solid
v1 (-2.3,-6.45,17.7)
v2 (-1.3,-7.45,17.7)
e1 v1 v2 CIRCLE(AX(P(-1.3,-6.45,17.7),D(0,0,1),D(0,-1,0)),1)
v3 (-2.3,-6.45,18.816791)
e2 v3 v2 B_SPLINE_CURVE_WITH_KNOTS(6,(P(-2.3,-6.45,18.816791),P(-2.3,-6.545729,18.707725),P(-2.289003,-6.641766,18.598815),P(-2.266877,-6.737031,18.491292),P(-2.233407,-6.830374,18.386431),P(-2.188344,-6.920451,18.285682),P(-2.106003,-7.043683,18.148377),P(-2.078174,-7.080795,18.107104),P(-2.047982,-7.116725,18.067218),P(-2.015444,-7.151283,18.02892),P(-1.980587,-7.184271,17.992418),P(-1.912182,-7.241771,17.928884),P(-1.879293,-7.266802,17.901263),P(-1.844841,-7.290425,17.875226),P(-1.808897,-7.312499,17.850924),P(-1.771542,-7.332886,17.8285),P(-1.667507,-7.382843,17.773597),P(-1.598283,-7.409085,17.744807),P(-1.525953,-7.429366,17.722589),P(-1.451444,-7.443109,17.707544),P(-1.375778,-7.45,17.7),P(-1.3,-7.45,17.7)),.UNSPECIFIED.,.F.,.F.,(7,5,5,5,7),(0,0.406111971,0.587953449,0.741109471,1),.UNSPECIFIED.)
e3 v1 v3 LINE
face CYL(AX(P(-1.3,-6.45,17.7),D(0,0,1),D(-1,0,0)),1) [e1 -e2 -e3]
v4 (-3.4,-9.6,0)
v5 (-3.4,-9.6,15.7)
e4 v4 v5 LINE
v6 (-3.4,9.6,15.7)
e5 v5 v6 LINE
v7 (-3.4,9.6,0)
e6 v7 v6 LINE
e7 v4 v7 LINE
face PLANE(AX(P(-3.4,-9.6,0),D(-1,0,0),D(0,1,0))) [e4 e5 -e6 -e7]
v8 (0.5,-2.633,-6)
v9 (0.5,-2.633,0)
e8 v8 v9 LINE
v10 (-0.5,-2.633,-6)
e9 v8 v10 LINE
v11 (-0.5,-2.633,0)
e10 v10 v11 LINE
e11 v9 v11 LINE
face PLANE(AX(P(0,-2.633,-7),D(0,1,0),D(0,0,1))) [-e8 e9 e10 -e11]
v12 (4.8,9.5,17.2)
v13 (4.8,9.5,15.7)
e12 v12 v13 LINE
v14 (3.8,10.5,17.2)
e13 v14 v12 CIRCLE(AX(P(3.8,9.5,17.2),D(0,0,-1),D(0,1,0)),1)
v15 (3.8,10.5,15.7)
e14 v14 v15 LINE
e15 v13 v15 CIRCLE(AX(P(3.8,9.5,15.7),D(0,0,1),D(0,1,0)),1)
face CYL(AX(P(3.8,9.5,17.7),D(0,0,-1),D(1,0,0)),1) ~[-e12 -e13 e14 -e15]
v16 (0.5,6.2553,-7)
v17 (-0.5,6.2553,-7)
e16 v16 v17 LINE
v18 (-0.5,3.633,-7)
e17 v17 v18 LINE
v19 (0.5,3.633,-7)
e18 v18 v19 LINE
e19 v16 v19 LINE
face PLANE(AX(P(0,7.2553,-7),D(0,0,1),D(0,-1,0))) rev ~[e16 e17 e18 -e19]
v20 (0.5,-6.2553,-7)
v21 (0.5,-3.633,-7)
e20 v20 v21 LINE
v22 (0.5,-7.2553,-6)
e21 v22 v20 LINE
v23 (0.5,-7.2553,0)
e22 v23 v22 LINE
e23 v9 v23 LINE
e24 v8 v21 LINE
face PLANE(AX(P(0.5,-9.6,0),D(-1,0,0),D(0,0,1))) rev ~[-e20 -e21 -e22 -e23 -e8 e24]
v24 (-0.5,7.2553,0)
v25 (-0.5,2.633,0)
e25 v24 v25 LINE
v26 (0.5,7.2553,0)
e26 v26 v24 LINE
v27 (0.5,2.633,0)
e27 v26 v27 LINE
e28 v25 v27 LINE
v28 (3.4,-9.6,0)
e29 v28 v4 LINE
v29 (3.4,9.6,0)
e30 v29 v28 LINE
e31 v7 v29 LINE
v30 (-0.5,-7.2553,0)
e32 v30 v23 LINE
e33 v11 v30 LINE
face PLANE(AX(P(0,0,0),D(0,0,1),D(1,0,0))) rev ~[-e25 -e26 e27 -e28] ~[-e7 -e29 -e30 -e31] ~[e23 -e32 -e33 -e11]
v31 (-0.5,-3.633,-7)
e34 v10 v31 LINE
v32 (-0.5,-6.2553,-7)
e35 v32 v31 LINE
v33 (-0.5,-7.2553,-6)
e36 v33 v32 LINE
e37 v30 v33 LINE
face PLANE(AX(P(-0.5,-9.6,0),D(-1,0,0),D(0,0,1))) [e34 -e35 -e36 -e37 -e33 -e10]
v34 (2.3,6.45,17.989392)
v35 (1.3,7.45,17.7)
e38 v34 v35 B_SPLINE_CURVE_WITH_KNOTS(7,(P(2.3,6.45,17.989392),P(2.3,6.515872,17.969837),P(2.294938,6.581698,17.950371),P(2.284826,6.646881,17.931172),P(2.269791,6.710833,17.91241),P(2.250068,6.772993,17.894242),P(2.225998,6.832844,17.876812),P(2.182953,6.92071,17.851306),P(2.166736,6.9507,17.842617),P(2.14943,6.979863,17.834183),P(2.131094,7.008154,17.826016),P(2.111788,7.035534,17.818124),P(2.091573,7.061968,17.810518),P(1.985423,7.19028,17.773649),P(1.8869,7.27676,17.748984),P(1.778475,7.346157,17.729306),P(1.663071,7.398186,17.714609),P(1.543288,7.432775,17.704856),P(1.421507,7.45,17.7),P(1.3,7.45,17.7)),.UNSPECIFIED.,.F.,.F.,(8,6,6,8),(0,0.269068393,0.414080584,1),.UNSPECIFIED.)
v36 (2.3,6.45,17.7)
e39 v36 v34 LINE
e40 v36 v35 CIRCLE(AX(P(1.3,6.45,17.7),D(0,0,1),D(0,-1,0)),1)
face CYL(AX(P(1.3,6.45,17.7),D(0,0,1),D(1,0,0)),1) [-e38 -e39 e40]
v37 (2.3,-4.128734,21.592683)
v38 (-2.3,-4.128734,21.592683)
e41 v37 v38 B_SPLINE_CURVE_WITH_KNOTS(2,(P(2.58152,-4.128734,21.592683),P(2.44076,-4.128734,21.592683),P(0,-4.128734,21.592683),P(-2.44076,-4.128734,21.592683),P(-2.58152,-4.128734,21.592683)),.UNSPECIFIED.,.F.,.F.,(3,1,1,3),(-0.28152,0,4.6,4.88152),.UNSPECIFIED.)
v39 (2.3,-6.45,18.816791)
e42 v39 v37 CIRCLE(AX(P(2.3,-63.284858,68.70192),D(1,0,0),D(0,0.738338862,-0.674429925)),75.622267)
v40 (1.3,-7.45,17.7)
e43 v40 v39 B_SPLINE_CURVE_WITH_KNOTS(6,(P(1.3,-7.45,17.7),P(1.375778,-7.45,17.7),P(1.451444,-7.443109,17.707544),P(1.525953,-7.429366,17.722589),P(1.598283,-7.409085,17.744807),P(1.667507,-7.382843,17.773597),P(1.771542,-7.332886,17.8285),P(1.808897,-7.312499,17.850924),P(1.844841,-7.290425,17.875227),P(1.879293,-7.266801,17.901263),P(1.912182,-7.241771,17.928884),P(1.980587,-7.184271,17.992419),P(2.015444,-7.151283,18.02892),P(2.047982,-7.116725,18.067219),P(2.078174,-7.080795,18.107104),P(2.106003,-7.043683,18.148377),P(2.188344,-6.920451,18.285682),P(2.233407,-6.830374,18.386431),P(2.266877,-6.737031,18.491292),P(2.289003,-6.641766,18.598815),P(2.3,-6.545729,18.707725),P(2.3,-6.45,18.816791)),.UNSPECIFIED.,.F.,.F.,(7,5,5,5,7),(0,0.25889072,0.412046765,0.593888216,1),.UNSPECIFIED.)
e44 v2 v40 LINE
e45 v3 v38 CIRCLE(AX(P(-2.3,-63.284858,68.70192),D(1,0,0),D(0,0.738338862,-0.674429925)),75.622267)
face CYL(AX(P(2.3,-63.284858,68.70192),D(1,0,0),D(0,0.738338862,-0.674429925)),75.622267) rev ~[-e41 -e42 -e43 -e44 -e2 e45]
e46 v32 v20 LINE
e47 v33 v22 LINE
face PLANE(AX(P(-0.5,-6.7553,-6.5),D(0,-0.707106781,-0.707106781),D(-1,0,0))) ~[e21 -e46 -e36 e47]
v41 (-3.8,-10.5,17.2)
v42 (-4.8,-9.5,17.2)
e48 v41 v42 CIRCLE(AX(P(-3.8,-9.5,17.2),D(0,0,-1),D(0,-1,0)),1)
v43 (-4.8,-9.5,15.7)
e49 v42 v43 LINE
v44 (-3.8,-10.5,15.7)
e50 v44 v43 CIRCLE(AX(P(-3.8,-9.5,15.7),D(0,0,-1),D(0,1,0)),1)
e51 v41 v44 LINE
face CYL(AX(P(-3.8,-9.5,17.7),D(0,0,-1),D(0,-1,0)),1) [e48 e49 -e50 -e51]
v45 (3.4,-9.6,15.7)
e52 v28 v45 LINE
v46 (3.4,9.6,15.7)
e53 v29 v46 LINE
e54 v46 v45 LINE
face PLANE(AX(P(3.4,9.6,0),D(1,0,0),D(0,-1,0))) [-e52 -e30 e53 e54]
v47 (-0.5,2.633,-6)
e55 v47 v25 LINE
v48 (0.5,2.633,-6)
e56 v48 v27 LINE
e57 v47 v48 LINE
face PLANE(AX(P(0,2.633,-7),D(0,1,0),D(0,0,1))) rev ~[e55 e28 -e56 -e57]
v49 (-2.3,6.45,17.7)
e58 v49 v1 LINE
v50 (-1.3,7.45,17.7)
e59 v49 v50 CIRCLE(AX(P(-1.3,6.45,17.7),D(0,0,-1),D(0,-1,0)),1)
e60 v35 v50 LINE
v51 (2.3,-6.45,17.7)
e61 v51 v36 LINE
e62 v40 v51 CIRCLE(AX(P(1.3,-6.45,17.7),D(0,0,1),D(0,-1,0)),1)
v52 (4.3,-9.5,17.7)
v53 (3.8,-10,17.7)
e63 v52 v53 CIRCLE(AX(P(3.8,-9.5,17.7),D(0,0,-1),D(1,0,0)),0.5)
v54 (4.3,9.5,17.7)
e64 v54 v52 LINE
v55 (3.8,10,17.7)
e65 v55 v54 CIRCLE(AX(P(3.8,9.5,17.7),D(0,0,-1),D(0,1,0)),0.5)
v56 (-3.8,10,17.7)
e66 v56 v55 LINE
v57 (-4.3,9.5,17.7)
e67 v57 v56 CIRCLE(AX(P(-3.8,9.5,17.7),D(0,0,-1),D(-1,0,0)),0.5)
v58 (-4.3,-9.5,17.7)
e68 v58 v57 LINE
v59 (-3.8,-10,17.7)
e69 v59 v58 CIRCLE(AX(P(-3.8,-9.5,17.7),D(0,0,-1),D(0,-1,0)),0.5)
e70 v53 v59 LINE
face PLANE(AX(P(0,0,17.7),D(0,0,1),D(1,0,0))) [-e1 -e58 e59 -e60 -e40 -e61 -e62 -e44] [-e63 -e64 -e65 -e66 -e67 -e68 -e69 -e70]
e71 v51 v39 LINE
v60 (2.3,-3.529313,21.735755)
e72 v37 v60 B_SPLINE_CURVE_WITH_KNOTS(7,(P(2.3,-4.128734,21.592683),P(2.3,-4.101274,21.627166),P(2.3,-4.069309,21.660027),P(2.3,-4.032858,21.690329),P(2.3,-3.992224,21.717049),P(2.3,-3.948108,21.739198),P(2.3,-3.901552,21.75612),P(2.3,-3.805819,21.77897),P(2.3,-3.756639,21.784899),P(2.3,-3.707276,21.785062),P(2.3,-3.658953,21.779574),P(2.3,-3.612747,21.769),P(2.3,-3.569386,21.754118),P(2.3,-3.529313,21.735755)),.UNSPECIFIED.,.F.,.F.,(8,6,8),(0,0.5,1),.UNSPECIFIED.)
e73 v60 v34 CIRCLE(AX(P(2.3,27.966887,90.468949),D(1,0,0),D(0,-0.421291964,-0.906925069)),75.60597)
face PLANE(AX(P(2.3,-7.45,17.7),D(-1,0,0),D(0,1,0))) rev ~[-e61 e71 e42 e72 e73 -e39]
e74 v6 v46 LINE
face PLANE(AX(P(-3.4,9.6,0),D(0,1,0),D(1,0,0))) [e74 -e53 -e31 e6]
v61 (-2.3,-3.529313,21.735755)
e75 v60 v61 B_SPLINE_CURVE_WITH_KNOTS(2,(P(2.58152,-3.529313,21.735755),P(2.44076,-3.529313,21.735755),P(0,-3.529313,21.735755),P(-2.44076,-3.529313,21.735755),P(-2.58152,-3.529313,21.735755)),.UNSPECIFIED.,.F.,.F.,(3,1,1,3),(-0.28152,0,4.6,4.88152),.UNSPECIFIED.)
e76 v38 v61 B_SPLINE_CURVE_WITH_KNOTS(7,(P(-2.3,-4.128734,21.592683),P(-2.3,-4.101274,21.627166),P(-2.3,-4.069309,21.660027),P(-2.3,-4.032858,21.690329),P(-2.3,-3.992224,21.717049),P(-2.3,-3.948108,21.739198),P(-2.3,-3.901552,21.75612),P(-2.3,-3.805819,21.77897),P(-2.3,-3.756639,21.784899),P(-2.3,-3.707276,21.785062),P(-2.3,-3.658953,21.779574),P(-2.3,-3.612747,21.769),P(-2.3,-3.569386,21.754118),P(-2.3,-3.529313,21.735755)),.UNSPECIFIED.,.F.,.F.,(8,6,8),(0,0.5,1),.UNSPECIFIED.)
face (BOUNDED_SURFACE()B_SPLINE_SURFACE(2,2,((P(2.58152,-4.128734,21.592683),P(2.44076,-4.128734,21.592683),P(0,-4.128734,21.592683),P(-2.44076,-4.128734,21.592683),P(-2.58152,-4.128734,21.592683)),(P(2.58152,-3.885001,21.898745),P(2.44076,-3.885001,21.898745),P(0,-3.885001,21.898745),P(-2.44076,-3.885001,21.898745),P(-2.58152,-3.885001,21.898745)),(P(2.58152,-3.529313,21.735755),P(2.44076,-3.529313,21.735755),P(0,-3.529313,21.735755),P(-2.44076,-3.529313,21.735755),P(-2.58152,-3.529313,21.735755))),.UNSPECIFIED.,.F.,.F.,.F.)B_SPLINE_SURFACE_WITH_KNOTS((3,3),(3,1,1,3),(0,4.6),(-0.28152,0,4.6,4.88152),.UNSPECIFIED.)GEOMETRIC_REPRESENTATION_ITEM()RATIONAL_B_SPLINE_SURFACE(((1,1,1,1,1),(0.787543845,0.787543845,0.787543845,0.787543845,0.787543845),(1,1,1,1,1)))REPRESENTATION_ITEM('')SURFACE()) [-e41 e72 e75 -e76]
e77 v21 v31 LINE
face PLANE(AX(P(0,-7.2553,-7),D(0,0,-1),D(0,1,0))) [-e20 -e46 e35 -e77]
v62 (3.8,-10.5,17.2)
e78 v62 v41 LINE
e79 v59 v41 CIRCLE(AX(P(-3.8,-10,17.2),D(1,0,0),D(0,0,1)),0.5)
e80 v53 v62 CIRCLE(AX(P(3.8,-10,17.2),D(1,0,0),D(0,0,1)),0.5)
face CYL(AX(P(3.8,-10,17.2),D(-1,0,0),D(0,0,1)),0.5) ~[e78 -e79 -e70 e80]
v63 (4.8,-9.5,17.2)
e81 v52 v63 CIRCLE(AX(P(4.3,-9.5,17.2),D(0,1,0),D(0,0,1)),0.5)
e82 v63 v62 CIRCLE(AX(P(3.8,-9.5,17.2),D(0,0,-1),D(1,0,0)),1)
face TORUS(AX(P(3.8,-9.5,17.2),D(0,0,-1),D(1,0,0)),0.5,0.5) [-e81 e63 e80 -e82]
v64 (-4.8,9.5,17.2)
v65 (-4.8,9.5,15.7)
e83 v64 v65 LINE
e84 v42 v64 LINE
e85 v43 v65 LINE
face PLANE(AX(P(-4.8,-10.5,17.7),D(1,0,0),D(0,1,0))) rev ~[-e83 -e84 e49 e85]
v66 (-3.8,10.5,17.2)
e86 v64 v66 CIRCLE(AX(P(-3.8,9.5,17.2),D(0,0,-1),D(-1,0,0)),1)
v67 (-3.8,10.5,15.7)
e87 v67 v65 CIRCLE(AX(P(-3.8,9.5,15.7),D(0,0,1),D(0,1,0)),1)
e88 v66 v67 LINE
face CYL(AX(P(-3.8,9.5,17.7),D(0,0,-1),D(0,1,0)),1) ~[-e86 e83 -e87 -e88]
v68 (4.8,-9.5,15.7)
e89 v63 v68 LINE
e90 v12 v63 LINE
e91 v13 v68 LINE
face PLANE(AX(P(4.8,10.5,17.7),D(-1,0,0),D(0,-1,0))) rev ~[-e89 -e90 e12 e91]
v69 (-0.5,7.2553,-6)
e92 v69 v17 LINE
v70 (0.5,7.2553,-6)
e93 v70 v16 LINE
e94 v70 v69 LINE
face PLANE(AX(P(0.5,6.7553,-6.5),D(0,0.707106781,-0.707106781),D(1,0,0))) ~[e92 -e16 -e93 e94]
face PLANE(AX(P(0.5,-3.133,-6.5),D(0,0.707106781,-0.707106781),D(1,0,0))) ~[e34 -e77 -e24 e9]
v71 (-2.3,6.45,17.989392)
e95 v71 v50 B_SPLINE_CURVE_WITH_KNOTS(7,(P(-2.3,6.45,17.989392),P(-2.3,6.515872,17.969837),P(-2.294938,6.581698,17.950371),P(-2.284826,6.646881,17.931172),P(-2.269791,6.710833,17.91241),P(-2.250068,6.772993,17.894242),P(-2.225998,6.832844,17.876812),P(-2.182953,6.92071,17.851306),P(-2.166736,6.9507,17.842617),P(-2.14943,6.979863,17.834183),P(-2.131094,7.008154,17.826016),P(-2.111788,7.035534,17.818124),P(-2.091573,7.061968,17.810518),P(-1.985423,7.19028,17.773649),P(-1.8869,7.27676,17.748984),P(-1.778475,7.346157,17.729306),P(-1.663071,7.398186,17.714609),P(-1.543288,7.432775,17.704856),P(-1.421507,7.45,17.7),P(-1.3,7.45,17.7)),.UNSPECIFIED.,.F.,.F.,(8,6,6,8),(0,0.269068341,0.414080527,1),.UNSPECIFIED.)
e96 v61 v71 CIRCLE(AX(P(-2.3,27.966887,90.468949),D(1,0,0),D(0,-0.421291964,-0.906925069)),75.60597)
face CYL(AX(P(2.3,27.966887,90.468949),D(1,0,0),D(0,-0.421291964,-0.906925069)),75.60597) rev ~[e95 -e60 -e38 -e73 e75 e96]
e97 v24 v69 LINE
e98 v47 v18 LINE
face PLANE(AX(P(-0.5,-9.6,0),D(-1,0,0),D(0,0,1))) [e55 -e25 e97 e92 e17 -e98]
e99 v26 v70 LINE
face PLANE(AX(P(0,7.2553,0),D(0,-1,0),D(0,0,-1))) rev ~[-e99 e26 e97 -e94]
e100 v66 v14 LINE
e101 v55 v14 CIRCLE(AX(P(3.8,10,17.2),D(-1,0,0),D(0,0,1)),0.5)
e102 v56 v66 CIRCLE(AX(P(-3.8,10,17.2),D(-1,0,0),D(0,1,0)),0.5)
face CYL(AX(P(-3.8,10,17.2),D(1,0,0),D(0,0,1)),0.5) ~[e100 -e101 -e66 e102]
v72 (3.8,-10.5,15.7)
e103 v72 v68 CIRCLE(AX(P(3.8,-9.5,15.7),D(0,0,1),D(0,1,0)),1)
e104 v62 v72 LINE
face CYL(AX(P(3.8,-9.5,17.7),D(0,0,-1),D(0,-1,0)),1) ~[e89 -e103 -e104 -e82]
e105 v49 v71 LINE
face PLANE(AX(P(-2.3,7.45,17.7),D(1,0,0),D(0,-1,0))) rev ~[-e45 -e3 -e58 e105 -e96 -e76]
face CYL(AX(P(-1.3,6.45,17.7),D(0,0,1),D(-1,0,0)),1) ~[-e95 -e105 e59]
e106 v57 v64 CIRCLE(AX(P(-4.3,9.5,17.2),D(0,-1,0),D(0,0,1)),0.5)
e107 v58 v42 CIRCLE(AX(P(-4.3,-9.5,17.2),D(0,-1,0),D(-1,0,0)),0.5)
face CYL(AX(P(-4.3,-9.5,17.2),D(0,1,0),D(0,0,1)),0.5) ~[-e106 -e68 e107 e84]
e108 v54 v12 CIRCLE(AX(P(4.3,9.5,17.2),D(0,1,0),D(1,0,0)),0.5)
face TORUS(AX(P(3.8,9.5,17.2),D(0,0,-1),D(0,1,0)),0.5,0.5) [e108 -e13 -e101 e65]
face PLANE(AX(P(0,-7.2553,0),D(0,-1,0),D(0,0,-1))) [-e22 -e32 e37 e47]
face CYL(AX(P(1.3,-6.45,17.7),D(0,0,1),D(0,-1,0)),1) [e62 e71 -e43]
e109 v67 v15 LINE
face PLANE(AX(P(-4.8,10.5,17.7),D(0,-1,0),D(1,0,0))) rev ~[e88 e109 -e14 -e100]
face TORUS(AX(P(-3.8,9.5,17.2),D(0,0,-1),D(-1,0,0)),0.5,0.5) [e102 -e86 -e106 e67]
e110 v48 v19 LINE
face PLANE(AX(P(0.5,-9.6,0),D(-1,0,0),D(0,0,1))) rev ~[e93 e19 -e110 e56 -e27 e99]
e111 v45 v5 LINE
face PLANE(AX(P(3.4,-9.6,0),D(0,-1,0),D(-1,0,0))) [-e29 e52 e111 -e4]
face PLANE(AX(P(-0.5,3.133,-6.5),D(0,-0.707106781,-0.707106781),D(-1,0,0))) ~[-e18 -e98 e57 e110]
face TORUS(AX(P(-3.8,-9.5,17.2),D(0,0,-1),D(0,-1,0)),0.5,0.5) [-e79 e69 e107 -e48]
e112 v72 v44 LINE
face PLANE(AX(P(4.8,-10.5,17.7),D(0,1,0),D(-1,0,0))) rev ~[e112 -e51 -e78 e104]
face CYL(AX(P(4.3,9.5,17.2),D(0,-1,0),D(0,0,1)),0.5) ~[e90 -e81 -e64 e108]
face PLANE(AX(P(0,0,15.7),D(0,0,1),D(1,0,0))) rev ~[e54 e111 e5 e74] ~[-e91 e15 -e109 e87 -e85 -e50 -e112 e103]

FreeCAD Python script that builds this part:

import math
import FreeCAD as App
import Part
import Sketcher
from FreeCAD import Vector
Q = App.Units.Quantity


def edges_at(feature, points):
    """Names of the edges that pass closest to the given points."""
    edges = feature.Shape.Edges
    near = lambda p: min(range(len(edges)), key=lambda i: edges[i].distToShape(Part.Vertex(*p))[0])
    return sorted({f"Edge{near(p) + 1}" for p in points})


def add_polygon(sketch, points):
    """Adds a closed chain of lines whose ends are joined by coincident constraints."""
    first, n = sketch.GeometryCount, len(points)
    for a, b in zip(points, points[1:] + points[:1]):
        sketch.addGeometry(Part.LineSegment(App.Vector(*a, 0), App.Vector(*b, 0)), False)
    for i in range(n):
        sketch.addConstraint(Sketcher.Constraint("Coincident", first + i, 2, first + (i + 1) % n, 1))

doc = App.newDocument("Part")
body = doc.addObject("PartDesign::Body", "Body")

# Sketch on XY plane
sketch1 = body.newObject("Sketcher::SketchObject", "Sketch")
sketch1.AttachmentSupport = (doc.getObject("XY_Plane"), [""])
sketch1.MapMode = "FlatFace"
add_polygon(sketch1, [(3.4, 9.6), (-3.4, 9.6), (-3.4, -9.6), (3.4, -9.6)])  # lines 0-3
sketch1.addConstraint(Sketcher.Constraint("Horizontal", 0))
sketch1.addConstraint(Sketcher.Constraint("Vertical", 1))
sketch1.addConstraint(Sketcher.Constraint("Horizontal", 2))
sketch1.addConstraint(Sketcher.Constraint("Vertical", 3))
sketch1.addConstraint(Sketcher.Constraint("Symmetric", 0, 2, 2, 2, -1, 1))
sketch1.addConstraint(Sketcher.Constraint("DistanceX", 0, 2, 0, 1, Q("6.8 mm")))
sketch1.addConstraint(Sketcher.Constraint("DistanceY", 1, 2, 1, 1, Q("19.2 mm")))
pad1 = body.newObject("PartDesign::Pad", "Pad")
pad1.Profile = sketch1
pad1.Length = 17.7

# Sketch on XY plane
sketch2 = body.newObject("Sketcher::SketchObject", "Sketch001")
sketch2.AttachmentSupport = (doc.getObject("XY_Plane"), [""])
sketch2.MapMode = "FlatFace"
sketch2.AttachmentOffset = App.Placement(Vector(0, 0, 17.7), App.Rotation())
add_polygon(sketch2, [(4.8, 10.5), (-4.8, 10.5), (-4.8, -10.5), (4.8, -10.5)])  # lines 0-3
sketch2.addConstraint(Sketcher.Constraint("Horizontal", 0))
sketch2.addConstraint(Sketcher.Constraint("Vertical", 1))
sketch2.addConstraint(Sketcher.Constraint("Horizontal", 2))
sketch2.addConstraint(Sketcher.Constraint("Vertical", 3))
sketch2.addConstraint(Sketcher.Constraint("Symmetric", 0, 2, 2, 2, -1, 1))
sketch2.addConstraint(Sketcher.Constraint("DistanceY", 1, 2, 1, 1, Q("21 mm")))
sketch2.addConstraint(Sketcher.Constraint("DistanceX", 0, 2, 0, 1, Q("9.6 mm")))
pad2 = body.newObject("PartDesign::Pad", "Pad001")
pad2.Profile = sketch2
pad2.Length = 2
pad2.Reversed = True

# Sketch on XY plane
sketch3 = body.newObject("Sketcher::SketchObject", "Sketch002")
sketch3.AttachmentSupport = (doc.getObject("XY_Plane"), [""])
sketch3.MapMode = "FlatFace"
sketch3.AttachmentOffset = App.Placement(Vector(0, 0, 17.7), App.Rotation())
add_polygon(sketch3, [(-2.3, 7.45), (-2.3, -7.45), (2.3, -7.45), (2.3, 7.45)])  # lines 0-3
sketch3.addConstraint(Sketcher.Constraint("Vertical", 0))
sketch3.addConstraint(Sketcher.Constraint("Horizontal", 1))
sketch3.addConstraint(Sketcher.Constraint("Vertical", 2))
sketch3.addConstraint(Sketcher.Constraint("Horizontal", 3))
sketch3.addConstraint(Sketcher.Constraint("Symmetric", 0, 2, 2, 2, -1, 1))
sketch3.addConstraint(Sketcher.Constraint("DistanceX", 1, 1, 1, 2, Q("4.6 mm")))
sketch3.addConstraint(Sketcher.Constraint("DistanceY", 0, 2, 0, 1, Q("14.9 mm")))
pad3 = body.newObject("PartDesign::Pad", "Pad002")
pad3.Profile = sketch3
pad3.Length = 4.2
doc.recompute()

fillet = body.newObject("PartDesign::Fillet", "Fillet")
fillet.Base = (pad3, edges_at(pad3, [
    (-2.3, 7.45, 19.8),
    (2.3, 7.45, 19.8),
    (-2.3, -7.45, 19.8),
    (2.3, -7.45, 19.8),
]))
fillet.Radius = 1

# Sketch on YZ plane
sketch4 = body.newObject("Sketcher::SketchObject", "Sketch003")
sketch4.AttachmentSupport = (doc.getObject("YZ_Plane"), [""])
sketch4.MapMode = "FlatFace"
sketch4.AttachmentOffset = App.Placement(Vector(0, 0, 2.3), App.Rotation())
sketch4.addGeometry(Part.LineSegment(Vector(-7.45, 21.9, 0), Vector(-7.45, 17.7, 0)), False)
sketch4.addGeometry(Part.ArcOfCircle(Part.Circle(Vector(-63.284858, 68.70192, 0), Vector(0, 0, 1), 75.622267), math.radians(-42.409896), math.radians(-38.235175)), False)
sketch4.addGeometry(Part.LineSegment(Vector(-3.8853, 21.9, 0), Vector(-7.45, 21.9, 0)), False)
sketch4.addGeometry(Part.LineSegment(Vector(7.45, 21.9, 0), Vector(-3.8853, 21.9, 0)), False)
sketch4.addGeometry(Part.ArcOfCircle(Part.Circle(Vector(27.966887, 90.468949, 0), Vector(0, 0, 1), 75.60597), math.radians(-114.916181), math.radians(-105.745566)), False)
sketch4.addGeometry(Part.LineSegment(Vector(7.45, 17.7, 0), Vector(7.45, 21.9, 0)), False)
sketch4.addConstraint(Sketcher.Constraint("Coincident", 0, 2, 1, 1))
sketch4.addConstraint(Sketcher.Constraint("Coincident", 1, 2, 2, 1))
sketch4.addConstraint(Sketcher.Constraint("Coincident", 2, 2, 0, 1))
sketch4.addConstraint(Sketcher.Constraint("Coincident", 3, 2, 4, 1))
sketch4.addConstraint(Sketcher.Constraint("Coincident", 4, 2, 5, 1))
sketch4.addConstraint(Sketcher.Constraint("Coincident", 5, 2, 3, 1))
sketch4.addConstraint(Sketcher.Constraint("Vertical", 0))
sketch4.addConstraint(Sketcher.Constraint("Horizontal", 2))
sketch4.addConstraint(Sketcher.Constraint("Horizontal", 3))
sketch4.addConstraint(Sketcher.Constraint("Vertical", 5))
sketch4.addConstraint(Sketcher.Constraint("Coincident", 3, 2, 1, 2))
sketch4.addConstraint(Sketcher.Constraint("Symmetric", 0, 2, 4, 2, -2))
sketch4.addConstraint(Sketcher.Constraint("DistanceY", 0, 2, 0, 1, Q("4.2 mm")))
sketch4.addConstraint(Sketcher.Constraint("Radius", 4, Q("75.606 mm")))
sketch4.addConstraint(Sketcher.Constraint("DistanceY", -1, 1, 0, 2, Q("17.7 mm")))
sketch4.addConstraint(Sketcher.Constraint("Radius", 1, Q("75.6223 mm")))
sketch4.addConstraint(Sketcher.Constraint("DistanceX", 0, 2, 4, 2, Q("14.9 mm")))
sketch4.addConstraint(Sketcher.Constraint("DistanceX", 2, 2, 2, 1, Q("3.5647 mm")))
pocket1 = body.newObject("PartDesign::Pocket", "Pocket")
pocket1.Profile = sketch4
pocket1.Type = "ThroughAll"
doc.recompute()

fillet2 = body.newObject("PartDesign::Fillet", "Fillet001")
fillet2.Base = (pocket1, edges_at(pocket1, [(0, -3.885, 21.9)]))
fillet2.Radius = 0.5
doc.recompute()

fillet3 = body.newObject("PartDesign::Fillet", "Fillet002")
fillet3.Base = (fillet2, edges_at(fillet2, [
    (4.8, -10.5, 16.7),
    (4.8, 10.5, 16.7),
    (-4.8, 10.5, 16.7),
    (-4.8, -10.5, 16.7),
]))
fillet3.Radius = 1
doc.recompute()

fillet4 = body.newObject("PartDesign::Fillet", "Fillet003")
fillet4.Base = (fillet3, edges_at(fillet3, [
    (0, -10.5, 17.7),
    (4.8, 0, 17.7),
    (0, 10.5, 17.7),
    (-4.8, 0, 17.7),
]))
fillet4.Radius = 0.5

# Sketch on YZ plane
sketch5 = body.newObject("Sketcher::SketchObject", "Sketch004")
sketch5.AttachmentSupport = (doc.getObject("YZ_Plane"), [""])
sketch5.MapMode = "FlatFace"
add_polygon(sketch5, [(2.633, 0), (7.2553, 0), (7.2553, -7), (2.633, -7)])  # lines 0-3
add_polygon(sketch5, [(-7.2553, 0), (-2.633, 0), (-2.633, -7), (-7.2553, -7)])  # lines 4-7
sketch5.addConstraint(Sketcher.Constraint("Horizontal", 0))
sketch5.addConstraint(Sketcher.Constraint("Vertical", 1))
sketch5.addConstraint(Sketcher.Constraint("Horizontal", 2))
sketch5.addConstraint(Sketcher.Constraint("Vertical", 3))
sketch5.addConstraint(Sketcher.Constraint("Horizontal", 4))
sketch5.addConstraint(Sketcher.Constraint("Vertical", 5))
sketch5.addConstraint(Sketcher.Constraint("Horizontal", 6))
sketch5.addConstraint(Sketcher.Constraint("Vertical", 7))
sketch5.addConstraint(Sketcher.Constraint("Symmetric", 3, 2, 4, 2, -1, 1))
sketch5.addConstraint(Sketcher.Constraint("Symmetric", 1, 2, 6, 2, -2))
sketch5.addConstraint(Sketcher.Constraint("PointOnObject", 0, 2, -1))
sketch5.addConstraint(Sketcher.Constraint("DistanceY", 1, 2, 1, 1, Q("7 mm")))
sketch5.addConstraint(Sketcher.Constraint("DistanceX", 0, 1, 0, 2, Q("4.6223 mm")))
sketch5.addConstraint(Sketcher.Constraint("DistanceX", -1, 1, 2, 2, Q("2.633 mm")))
pad4 = body.newObject("PartDesign::Pad", "Pad003")
pad4.Profile = sketch5
pad4.Length = 1
pad4.Midplane = True
doc.recompute()

chamfer = body.newObject("PartDesign::Chamfer", "Chamfer")
chamfer.Base = (pad4, edges_at(pad4, [
    (0, 7.255, -7),
    (0, 2.633, -7),
    (0, -2.633, -7),
    (0, -7.255, -7),
]))
chamfer.Size = 1

doc.recompute()
